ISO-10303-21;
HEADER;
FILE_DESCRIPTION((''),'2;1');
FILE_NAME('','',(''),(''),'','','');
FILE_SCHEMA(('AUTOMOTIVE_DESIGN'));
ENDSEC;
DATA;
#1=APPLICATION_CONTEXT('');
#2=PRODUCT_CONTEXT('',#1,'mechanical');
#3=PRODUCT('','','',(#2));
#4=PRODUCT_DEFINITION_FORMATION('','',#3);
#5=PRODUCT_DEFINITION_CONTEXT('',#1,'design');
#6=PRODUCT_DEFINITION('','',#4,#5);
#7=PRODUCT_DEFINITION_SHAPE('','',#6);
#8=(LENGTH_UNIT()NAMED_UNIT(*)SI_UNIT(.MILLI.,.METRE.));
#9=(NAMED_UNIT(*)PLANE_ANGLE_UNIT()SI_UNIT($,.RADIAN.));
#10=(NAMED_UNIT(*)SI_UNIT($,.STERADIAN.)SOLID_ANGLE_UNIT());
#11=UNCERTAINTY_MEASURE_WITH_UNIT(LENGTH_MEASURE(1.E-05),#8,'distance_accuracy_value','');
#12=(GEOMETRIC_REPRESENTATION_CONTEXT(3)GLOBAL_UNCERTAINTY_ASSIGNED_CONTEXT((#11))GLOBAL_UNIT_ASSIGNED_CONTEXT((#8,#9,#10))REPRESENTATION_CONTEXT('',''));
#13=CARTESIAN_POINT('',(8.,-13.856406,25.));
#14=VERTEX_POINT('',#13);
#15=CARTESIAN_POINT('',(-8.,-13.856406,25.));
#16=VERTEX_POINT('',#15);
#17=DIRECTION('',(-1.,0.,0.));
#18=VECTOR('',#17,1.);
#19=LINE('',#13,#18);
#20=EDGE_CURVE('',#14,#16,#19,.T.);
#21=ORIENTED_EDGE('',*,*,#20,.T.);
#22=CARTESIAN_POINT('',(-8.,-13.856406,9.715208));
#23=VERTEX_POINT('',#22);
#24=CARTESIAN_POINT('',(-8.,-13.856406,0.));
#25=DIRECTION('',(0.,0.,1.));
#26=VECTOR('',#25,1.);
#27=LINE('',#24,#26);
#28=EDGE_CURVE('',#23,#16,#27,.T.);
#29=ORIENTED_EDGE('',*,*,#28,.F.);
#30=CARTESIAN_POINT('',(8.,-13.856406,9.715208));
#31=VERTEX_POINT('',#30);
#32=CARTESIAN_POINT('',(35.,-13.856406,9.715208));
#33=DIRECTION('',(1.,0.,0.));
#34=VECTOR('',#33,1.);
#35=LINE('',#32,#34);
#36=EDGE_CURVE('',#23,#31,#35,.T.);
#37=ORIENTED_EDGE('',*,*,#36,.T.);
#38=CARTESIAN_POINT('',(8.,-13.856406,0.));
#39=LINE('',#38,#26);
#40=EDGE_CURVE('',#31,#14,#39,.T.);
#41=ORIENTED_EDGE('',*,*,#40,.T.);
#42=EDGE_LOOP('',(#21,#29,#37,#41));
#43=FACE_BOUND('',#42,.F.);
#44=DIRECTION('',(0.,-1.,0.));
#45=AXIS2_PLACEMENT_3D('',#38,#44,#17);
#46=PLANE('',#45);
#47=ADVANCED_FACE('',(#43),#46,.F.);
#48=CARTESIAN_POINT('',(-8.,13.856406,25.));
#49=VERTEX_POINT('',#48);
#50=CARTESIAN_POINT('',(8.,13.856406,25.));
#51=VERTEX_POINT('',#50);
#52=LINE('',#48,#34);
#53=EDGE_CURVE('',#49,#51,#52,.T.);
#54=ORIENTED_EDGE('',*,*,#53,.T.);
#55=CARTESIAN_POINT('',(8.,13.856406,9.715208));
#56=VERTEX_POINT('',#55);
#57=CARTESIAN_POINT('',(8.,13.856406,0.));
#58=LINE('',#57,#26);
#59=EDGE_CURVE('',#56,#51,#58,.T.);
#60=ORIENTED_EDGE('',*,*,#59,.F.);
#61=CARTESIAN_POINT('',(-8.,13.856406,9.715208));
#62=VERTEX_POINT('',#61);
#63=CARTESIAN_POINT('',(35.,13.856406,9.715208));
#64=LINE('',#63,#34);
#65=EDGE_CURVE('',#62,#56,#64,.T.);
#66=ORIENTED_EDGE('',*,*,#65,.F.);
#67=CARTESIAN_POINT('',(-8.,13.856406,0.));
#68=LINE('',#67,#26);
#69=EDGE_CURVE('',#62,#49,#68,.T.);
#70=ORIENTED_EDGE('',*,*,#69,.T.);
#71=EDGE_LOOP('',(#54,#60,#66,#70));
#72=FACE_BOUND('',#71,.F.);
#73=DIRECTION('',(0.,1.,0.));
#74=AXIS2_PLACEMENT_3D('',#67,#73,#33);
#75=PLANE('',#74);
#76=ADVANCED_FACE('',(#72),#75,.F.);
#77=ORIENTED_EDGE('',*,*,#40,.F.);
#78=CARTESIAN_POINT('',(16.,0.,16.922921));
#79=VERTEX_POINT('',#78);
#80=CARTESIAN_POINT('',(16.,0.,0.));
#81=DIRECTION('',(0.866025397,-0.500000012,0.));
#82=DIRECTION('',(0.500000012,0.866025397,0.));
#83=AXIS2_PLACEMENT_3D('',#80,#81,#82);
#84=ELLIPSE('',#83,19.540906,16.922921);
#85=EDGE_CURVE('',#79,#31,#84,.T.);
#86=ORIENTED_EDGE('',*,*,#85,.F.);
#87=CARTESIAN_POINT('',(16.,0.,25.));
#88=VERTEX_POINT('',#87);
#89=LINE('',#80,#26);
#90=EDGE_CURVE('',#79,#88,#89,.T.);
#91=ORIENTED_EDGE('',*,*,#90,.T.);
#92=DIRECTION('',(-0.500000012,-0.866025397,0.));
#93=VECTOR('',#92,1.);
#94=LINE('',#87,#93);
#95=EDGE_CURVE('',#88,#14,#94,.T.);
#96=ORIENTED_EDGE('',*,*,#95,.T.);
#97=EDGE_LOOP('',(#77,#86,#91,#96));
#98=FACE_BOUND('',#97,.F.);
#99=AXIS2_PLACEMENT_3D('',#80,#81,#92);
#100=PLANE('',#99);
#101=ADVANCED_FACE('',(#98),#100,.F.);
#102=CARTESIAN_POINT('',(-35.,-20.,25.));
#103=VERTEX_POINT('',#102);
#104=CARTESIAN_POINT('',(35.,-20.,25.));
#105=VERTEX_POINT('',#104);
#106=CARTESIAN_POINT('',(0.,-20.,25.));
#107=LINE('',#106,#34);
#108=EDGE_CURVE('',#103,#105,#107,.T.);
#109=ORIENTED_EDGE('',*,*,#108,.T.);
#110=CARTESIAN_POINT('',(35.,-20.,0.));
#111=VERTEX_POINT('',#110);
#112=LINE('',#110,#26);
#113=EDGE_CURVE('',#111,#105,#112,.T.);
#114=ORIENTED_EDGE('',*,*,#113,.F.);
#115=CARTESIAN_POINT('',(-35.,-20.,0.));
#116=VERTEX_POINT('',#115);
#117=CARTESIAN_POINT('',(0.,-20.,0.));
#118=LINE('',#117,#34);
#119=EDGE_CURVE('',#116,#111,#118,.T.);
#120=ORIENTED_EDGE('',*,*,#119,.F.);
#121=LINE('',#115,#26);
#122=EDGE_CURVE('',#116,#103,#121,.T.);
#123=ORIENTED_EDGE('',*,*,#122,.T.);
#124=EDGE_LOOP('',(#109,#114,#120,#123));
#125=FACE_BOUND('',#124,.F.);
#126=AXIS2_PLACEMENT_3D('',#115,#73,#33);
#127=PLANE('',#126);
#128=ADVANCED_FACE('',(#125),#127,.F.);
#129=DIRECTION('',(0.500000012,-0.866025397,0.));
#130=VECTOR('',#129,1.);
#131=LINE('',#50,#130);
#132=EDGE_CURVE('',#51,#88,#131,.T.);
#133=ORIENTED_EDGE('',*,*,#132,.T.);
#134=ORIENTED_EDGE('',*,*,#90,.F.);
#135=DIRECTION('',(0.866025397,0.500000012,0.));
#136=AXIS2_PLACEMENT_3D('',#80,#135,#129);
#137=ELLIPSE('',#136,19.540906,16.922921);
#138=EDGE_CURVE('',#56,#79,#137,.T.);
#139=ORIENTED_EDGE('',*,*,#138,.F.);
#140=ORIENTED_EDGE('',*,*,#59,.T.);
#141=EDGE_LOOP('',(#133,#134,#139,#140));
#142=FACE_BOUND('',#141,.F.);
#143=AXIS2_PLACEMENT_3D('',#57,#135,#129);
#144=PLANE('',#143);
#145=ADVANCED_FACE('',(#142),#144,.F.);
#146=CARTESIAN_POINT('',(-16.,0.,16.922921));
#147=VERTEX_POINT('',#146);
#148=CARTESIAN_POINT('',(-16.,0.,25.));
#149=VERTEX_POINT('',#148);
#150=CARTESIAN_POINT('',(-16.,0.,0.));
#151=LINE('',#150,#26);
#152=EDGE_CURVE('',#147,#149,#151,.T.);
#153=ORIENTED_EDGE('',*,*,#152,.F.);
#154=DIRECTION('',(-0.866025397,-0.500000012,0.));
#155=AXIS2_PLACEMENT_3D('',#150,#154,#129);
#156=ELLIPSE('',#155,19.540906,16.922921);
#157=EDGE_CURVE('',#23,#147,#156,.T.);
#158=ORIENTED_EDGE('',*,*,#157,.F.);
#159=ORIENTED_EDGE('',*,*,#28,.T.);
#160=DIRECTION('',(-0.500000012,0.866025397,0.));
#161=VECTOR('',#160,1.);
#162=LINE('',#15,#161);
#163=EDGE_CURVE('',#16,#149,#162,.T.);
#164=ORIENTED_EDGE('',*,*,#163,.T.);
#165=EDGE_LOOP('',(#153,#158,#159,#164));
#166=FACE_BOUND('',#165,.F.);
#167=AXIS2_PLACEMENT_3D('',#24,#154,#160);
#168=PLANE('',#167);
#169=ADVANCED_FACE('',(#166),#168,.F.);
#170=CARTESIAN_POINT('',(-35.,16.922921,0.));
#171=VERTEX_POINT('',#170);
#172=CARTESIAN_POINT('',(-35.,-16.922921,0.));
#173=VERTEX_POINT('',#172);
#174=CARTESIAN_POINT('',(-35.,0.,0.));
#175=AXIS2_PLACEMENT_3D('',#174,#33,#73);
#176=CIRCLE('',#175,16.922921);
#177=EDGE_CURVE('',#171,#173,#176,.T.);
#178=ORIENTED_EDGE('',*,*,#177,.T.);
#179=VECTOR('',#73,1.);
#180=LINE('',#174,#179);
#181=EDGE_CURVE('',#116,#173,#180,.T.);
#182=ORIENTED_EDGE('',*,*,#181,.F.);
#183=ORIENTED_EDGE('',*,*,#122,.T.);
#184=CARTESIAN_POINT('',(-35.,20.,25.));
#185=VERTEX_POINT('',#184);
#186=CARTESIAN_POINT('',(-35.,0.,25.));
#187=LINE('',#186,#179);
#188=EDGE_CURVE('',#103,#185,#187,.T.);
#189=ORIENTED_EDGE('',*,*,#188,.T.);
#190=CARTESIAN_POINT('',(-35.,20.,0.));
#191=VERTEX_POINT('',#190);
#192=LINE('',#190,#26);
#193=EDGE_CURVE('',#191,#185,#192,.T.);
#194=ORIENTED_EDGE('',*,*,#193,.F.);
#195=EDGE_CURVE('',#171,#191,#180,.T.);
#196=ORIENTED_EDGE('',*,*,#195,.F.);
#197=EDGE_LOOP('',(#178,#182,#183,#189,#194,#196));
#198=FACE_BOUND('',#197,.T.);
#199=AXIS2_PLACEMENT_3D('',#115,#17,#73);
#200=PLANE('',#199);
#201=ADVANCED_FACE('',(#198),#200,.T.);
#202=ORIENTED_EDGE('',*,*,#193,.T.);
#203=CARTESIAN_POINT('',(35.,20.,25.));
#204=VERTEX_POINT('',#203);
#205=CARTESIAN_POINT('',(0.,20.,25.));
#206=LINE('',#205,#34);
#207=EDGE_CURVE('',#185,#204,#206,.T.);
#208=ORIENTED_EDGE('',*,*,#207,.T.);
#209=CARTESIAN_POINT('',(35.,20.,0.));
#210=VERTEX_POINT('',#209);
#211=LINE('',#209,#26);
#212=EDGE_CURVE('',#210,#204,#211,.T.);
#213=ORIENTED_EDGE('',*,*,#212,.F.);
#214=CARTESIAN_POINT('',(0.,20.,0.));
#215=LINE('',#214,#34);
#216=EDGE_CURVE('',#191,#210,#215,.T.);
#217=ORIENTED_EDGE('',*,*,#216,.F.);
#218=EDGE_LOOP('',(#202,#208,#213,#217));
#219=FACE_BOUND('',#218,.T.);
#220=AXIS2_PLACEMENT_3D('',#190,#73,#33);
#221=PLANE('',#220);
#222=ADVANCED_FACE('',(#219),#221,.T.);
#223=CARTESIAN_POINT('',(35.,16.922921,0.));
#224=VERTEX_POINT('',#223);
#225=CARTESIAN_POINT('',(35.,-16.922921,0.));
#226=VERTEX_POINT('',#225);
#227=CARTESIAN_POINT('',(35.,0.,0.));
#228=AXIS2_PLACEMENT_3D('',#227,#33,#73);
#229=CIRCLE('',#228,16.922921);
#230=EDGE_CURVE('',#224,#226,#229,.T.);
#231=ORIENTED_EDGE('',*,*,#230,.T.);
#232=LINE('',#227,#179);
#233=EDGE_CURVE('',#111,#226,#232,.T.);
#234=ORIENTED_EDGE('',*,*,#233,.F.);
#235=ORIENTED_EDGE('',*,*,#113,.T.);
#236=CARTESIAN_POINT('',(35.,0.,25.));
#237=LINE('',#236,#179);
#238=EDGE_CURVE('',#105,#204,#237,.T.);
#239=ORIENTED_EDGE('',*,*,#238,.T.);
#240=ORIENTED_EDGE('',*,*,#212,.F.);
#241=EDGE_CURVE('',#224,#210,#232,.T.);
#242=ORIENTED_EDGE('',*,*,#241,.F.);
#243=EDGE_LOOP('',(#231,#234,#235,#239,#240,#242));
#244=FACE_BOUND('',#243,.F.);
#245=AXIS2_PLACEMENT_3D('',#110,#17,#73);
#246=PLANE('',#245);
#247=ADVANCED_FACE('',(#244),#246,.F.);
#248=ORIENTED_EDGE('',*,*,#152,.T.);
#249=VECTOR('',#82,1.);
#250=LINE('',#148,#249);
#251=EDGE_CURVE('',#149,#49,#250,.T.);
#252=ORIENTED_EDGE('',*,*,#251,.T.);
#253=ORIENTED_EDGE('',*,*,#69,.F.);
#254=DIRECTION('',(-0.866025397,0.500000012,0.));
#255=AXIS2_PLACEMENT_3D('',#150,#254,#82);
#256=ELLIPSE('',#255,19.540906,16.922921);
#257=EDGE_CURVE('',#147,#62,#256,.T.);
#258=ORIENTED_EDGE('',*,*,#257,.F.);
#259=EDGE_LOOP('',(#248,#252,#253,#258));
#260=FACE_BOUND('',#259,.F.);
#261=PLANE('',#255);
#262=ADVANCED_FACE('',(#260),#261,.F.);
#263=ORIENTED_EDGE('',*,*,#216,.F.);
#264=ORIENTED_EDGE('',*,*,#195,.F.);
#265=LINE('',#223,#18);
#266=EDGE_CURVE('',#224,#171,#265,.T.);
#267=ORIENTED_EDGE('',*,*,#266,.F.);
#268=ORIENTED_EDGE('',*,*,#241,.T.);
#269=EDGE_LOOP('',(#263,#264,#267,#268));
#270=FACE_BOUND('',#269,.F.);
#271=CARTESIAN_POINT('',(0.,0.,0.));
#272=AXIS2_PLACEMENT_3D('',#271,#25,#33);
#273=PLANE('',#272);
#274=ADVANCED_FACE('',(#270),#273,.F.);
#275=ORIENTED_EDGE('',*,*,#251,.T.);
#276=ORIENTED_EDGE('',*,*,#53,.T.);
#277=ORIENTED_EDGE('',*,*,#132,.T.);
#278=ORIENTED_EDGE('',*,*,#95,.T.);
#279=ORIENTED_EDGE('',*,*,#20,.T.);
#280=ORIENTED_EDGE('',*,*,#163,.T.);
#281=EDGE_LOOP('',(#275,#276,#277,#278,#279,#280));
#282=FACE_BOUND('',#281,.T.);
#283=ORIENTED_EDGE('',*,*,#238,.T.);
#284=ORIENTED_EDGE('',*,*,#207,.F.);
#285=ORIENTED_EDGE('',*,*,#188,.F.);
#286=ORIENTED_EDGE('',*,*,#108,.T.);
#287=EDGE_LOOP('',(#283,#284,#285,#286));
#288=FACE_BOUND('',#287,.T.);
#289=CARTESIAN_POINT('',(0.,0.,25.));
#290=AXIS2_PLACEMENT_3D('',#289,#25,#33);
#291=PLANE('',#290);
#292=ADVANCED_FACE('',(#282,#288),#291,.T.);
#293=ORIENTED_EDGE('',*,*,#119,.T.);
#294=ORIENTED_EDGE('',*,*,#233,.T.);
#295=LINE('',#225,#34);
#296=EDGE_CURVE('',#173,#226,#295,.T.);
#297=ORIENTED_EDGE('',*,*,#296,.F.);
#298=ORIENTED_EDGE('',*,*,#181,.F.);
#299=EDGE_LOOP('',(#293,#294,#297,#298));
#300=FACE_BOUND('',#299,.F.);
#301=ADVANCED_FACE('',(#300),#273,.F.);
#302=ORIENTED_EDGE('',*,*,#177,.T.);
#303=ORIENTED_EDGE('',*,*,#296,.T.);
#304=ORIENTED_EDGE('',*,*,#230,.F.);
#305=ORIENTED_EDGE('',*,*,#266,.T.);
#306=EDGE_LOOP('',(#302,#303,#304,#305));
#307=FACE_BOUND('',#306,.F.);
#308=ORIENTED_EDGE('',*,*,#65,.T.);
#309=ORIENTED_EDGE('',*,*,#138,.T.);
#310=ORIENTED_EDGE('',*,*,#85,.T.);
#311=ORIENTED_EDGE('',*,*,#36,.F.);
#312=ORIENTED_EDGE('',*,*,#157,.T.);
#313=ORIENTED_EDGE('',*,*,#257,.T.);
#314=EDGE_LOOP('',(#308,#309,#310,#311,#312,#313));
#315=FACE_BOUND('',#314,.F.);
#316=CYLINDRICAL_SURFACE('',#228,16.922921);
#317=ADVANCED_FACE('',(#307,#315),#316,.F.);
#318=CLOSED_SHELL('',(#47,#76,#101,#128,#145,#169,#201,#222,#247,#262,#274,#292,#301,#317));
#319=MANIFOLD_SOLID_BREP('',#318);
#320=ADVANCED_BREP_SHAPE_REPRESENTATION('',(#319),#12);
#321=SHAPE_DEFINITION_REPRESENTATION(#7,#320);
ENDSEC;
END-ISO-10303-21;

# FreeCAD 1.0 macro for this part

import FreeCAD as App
import Part
import Sketcher
Q = App.Units.Quantity


def add_polygon(sketch, points):
    """Adds a closed chain of lines whose ends are joined by coincident constraints."""
    first, n = sketch.GeometryCount, len(points)
    for a, b in zip(points, points[1:] + points[:1]):
        sketch.addGeometry(Part.LineSegment(App.Vector(*a, 0), App.Vector(*b, 0)), False)
    for i in range(n):
        sketch.addConstraint(Sketcher.Constraint("Coincident", first + i, 2, first + (i + 1) % n, 1))

doc = App.newDocument("Part")
body = doc.addObject("PartDesign::Body", "Body")

# Sketch on XY plane
sketch1 = body.newObject("Sketcher::SketchObject", "Sketch")
sketch1.AttachmentSupport = (doc.getObject("XY_Plane"), [""])
sketch1.MapMode = "FlatFace"
add_polygon(sketch1, [(-35, 20), (-35, -20), (35, -20), (35, 20)])  # lines 0-3
add_polygon(sketch1, [(8, -14), (-8, -14), (-16, 0), (-8, 14), (8, 14), (16, 0)])  # lines 4-9
sketch1.addConstraint(Sketcher.Constraint("Vertical", 0))
sketch1.addConstraint(Sketcher.Constraint("Horizontal", 1))
sketch1.addConstraint(Sketcher.Constraint("Vertical", 2))
sketch1.addConstraint(Sketcher.Constraint("Horizontal", 3))
sketch1.addConstraint(Sketcher.Constraint("Horizontal", 4))
sketch1.addConstraint(Sketcher.Constraint("Horizontal", 7))
sketch1.addConstraint(Sketcher.Constraint("Symmetric", 0, 2, 2, 2, -1, 1))
sketch1.addConstraint(Sketcher.Constraint("Symmetric", 4, 2, 7, 2, -1, 1))
sketch1.addConstraint(Sketcher.Constraint("Symmetric", 5, 2, 8, 2, -1, 1))
sketch1.addConstraint(Sketcher.Constraint("PointOnObject", 5, 2, -1))
sketch1.addConstraint(Sketcher.Constraint("Parallel", 6, 9))
sketch1.addConstraint(Sketcher.Constraint("Vertical", 4, 2, 6, 2))
sketch1.addConstraint(Sketcher.Constraint("DistanceX", 1, 1, 1, 2, Q("70 mm")))
sketch1.addConstraint(Sketcher.Constraint("DistanceX", 4, 2, 4, 1, Q("16 mm")))
sketch1.addConstraint(Sketcher.Constraint("DistanceY", 0, 2, 0, 1, Q("40 mm")))
sketch1.addConstraint(Sketcher.Constraint("Angle", 5, Q("120.000001 deg")))
sketch1.addConstraint(Sketcher.Constraint("Distance", 5, Q("16 mm")))
pad1 = body.newObject("PartDesign::Pad", "Pad")
pad1.Profile = sketch1
pad1.Length = 25

# Sketch on YZ plane
sketch2 = body.newObject("Sketcher::SketchObject", "Sketch001")
sketch2.AttachmentSupport = (doc.getObject("YZ_Plane"), [""])
sketch2.MapMode = "FlatFace"
sketch2.AttachmentOffset = App.Placement(App.Vector(0, 0, 35), App.Rotation())
sketch2.addGeometry(Part.Circle(App.Vector(0, 0, 0), App.Vector(0, 0, 1), 17), False)
sketch2.addConstraint(Sketcher.Constraint("Coincident", 0, 3, -1, 1))
sketch2.addConstraint(Sketcher.Constraint("Diameter", 0, Q("33.845842 mm")))
pocket1 = body.newObject("PartDesign::Pocket", "Pocket")
pocket1.Profile = sketch2
pocket1.Type = "ThroughAll"

doc.recompute()
